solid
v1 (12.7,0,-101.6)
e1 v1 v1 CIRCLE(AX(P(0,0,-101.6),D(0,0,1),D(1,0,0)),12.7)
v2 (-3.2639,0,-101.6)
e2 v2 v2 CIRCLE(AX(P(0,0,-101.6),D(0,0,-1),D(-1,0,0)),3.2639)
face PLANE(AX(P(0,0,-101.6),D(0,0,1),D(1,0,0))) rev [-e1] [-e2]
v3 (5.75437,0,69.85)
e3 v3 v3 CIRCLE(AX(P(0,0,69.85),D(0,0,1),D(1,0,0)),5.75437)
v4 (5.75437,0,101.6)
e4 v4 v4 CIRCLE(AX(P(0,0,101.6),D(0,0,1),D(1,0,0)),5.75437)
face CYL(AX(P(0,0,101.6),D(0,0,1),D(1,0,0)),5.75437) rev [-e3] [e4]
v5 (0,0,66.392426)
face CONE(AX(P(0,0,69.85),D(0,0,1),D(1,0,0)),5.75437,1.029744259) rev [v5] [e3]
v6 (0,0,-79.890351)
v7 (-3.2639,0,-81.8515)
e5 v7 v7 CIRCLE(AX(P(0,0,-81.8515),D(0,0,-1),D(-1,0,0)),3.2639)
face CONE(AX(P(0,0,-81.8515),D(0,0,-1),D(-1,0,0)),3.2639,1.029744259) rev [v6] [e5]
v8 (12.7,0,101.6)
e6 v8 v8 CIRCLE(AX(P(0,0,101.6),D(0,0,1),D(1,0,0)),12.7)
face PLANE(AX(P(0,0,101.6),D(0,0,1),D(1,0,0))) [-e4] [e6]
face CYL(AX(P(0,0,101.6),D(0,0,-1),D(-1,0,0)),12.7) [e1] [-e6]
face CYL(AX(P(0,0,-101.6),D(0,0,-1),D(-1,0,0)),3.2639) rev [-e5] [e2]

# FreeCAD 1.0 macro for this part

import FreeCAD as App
import Part
import Sketcher
Q = App.Units.Quantity

doc = App.newDocument("Part")
body = doc.addObject("PartDesign::Body", "Body")

sketch1 = doc.addObject("Sketcher::SketchObject", "Sketch")
body.addObject(sketch1)
sketch1.AttachmentSupport = (doc.XY_Plane, [""])
sketch1.MapMode = "FlatFace"
sketch1.addGeometry(Part.Circle(App.Vector(0, 0, 0), App.Vector(0, 0, 1), 12.7), False)
sketch1.addConstraint(Sketcher.Constraint("Coincident", 0, 3, -1, 1))
sketch1.addConstraint(Sketcher.Constraint("Diameter", 0, Q("1 in")))
pad1 = doc.addObject("PartDesign::Pad", "Pad")
body.addObject(pad1)
pad1.Profile = sketch1
pad1.Length = Q("8 in")
pad1.Midplane = True

sketch2 = doc.addObject("Sketcher::SketchObject", "Sketch001")
body.addObject(sketch2)
sketch2.AttachmentSupport = (doc.XY_Plane, [""])
sketch2.MapMode = "FlatFace"
sketch2.AttachmentOffset = App.Placement(App.Vector(0, 0, 4 * 25.4), App.Rotation())
sketch2.addGeometry(Part.Circle(App.Vector(0, 0, 0), App.Vector(0, 0, 1), 5.75437), False)
sketch2.addConstraint(Sketcher.Constraint("Coincident", 0, 3, -1, 1))
sketch2.addConstraint(Sketcher.Constraint("Diameter", 0, Q("0.4531 in")))
doc.recompute()
hole = doc.addObject("PartDesign::Hole", "Hole")
body.addObject(hole)
hole.Profile = sketch2
hole.ThreadType = "None"
hole.Diameter = Q("0.4531 in")
hole.DepthType = "Dimension"
hole.Depth = Q("1.25 in")
hole.DrillPoint = "Angled"
hole.DrillPointAngle = 118

sketch3 = doc.addObject("Sketcher::SketchObject", "Sketch002")
body.addObject(sketch3)
sketch3.AttachmentSupport = (doc.XY_Plane, [""])
sketch3.MapMode = "FlatFace"
sketch3.AttachmentOffset = App.Placement(App.Vector(0, 0, -4 * 25.4), App.Rotation())
sketch3.addGeometry(Part.Circle(App.Vector(0, 0, 0), App.Vector(0, 0, 1), 3.2639), False)
sketch3.addConstraint(Sketcher.Constraint("Coincident", 0, 3, -1, 1))
sketch3.addConstraint(Sketcher.Constraint("Diameter", 0, Q("0.257 in")))
doc.recompute()
hole2 = doc.addObject("PartDesign::Hole", "Hole001")
body.addObject(hole2)
hole2.Profile = sketch3
hole2.ThreadType = "None"
hole2.Diameter = Q("0.257 in")
hole2.DepthType = "Dimension"
hole2.Depth = Q("0.7775 in")
hole2.DrillPoint = "Angled"
hole2.DrillPointAngle = 118
hole2.Reversed = True

doc.recompute()
